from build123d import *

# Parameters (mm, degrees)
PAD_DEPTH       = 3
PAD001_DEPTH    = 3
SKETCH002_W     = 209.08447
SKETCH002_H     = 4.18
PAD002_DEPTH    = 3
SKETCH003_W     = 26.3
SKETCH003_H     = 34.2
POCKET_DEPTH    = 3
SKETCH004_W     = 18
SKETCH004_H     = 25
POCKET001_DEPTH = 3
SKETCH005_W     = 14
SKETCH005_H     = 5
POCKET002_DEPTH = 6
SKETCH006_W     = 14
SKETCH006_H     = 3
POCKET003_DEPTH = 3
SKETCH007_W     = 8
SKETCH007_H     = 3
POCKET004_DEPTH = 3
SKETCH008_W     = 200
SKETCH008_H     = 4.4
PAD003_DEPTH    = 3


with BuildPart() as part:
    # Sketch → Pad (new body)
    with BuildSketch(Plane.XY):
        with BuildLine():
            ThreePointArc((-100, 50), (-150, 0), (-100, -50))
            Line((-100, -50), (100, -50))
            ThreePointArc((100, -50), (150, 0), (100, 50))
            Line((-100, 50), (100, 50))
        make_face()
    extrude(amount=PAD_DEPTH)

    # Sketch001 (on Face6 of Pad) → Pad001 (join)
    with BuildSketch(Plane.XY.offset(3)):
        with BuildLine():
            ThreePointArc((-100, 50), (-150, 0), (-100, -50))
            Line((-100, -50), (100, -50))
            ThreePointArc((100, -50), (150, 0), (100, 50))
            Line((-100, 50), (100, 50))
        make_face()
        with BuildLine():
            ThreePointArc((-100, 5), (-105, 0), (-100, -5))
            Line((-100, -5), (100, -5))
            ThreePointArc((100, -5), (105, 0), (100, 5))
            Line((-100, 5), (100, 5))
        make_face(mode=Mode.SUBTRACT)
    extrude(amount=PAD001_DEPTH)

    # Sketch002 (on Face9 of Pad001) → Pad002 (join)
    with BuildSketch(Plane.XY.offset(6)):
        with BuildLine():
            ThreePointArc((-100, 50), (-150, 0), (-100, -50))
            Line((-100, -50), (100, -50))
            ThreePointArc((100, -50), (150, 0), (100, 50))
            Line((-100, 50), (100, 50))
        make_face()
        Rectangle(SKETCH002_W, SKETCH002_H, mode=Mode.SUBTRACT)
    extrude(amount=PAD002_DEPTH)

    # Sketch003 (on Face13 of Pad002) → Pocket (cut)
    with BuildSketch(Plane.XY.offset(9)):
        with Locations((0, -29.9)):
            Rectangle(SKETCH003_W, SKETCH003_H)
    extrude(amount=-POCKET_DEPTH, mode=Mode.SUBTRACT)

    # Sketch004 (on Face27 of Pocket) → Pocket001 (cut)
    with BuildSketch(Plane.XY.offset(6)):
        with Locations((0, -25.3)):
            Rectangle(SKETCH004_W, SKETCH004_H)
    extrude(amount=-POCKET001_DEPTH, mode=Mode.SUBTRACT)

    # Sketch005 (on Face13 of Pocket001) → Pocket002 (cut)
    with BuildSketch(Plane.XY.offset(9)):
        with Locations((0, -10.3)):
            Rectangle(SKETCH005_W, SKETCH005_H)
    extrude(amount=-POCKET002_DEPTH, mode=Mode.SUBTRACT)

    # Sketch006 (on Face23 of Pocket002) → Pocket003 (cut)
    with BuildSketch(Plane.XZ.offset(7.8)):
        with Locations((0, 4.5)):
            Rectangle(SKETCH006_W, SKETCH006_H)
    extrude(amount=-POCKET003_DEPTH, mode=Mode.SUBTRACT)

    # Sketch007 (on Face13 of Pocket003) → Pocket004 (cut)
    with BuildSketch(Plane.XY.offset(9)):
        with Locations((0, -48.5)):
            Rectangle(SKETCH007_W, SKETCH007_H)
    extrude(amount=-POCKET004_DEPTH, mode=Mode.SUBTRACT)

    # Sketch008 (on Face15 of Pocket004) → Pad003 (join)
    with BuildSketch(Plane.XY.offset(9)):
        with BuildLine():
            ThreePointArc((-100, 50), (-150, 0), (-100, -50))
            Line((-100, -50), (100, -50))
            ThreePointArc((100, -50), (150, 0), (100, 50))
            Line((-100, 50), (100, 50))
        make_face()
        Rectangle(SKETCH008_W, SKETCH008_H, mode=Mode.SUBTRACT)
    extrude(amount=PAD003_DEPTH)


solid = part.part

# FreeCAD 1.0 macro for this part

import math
import FreeCAD as App
import Part
import Sketcher


def add_polygon(sketch, points):
    """Adds a closed chain of lines whose ends are joined by coincident constraints."""
    first, n = sketch.GeometryCount, len(points)
    for a, b in zip(points, points[1:] + points[:1]):
        sketch.addGeometry(Part.LineSegment(App.Vector(*a, 0), App.Vector(*b, 0)), False)
    for i in range(n):
        sketch.addConstraint(Sketcher.Constraint("Coincident", first + i, 2, first + (i + 1) % n, 1))

doc = App.newDocument("Part")
body = doc.addObject("PartDesign::Body", "Body")

# Sketch on XY plane
sketch1 = doc.addObject("Sketcher::SketchObject", "Sketch")
body.addObject(sketch1)
sketch1.AttachmentSupport = (doc.XY_Plane, [""])
sketch1.MapMode = "FlatFace"
sketch1.addGeometry([
    Part.ArcOfCircle(Part.Circle(App.Vector(-100, 0, 0), App.Vector(0, 0, 1), 50), math.radians(90), math.radians(270)),
    Part.LineSegment(App.Vector(-100, -50, 0), App.Vector(100, -50, 0)),
    Part.ArcOfCircle(Part.Circle(App.Vector(100, 0, 0), App.Vector(0, 0, 1), 50), math.radians(-90), math.radians(90)),
    Part.LineSegment(App.Vector(100, 50, 0), App.Vector(-100, 50, 0)),
], False)
sketch1.addConstraint([
    Sketcher.Constraint("Tangent", 0, 2, 1, 1),
    Sketcher.Constraint("Tangent", 1, 2, 2, 1),
    Sketcher.Constraint("Tangent", 2, 2, 3, 1),
    Sketcher.Constraint("Tangent", 3, 2, 0, 1),
    Sketcher.Constraint("Horizontal", 1),
    Sketcher.Constraint("Horizontal", 3),
    Sketcher.Constraint("Symmetric", 0, 3, 2, 3, -1, 1),
    Sketcher.Constraint("Radius", 0, 50.0),
    Sketcher.Constraint("DistanceX", 1, 1, 1, 2, 200.0),
])
pad1 = doc.addObject("PartDesign::Pad", "Pad")
body.addObject(pad1)
pad1.Profile = sketch1
pad1.Length = 3

# Sketch on XY plane
sketch2 = doc.addObject("Sketcher::SketchObject", "Sketch001")
body.addObject(sketch2)
sketch2.AttachmentSupport = (doc.XY_Plane, [""])
sketch2.MapMode = "FlatFace"
sketch2.AttachmentOffset = App.Placement(App.Vector(0, 0, 3), App.Rotation())
sketch2.addGeometry([
    Part.ArcOfCircle(Part.Circle(App.Vector(-100, 0, 0), App.Vector(0, 0, 1), 50), math.radians(90), math.radians(270)),  # 0
    Part.LineSegment(App.Vector(-100, -50, 0), App.Vector(100, -50, 0)),  # 1
    Part.ArcOfCircle(Part.Circle(App.Vector(100, 0, 0), App.Vector(0, 0, 1), 50), math.radians(-90), math.radians(90)),  # 2
    Part.LineSegment(App.Vector(100, 50, 0), App.Vector(-100, 50, 0)),  # 3
    Part.ArcOfCircle(Part.Circle(App.Vector(-100, 0, 0), App.Vector(0, 0, 1), 5), math.radians(90), math.radians(270)),  # 4
    Part.LineSegment(App.Vector(-100, 5, 0), App.Vector(100, 5, 0)),  # 5
    Part.ArcOfCircle(Part.Circle(App.Vector(100, 0, 0), App.Vector(0, 0, 1), 5), math.radians(-90), math.radians(90)),  # 6
    Part.LineSegment(App.Vector(100, -5, 0), App.Vector(-100, -5, 0)),  # 7
], False)
sketch2.addConstraint([
    Sketcher.Constraint("Tangent", 0, 2, 1, 1),
    Sketcher.Constraint("Tangent", 1, 2, 2, 1),
    Sketcher.Constraint("Tangent", 2, 2, 3, 1),
    Sketcher.Constraint("Tangent", 3, 2, 0, 1),
    Sketcher.Constraint("Tangent", 4, 1, 5, 1),
    Sketcher.Constraint("Tangent", 5, 2, 6, 2),
    Sketcher.Constraint("Tangent", 6, 1, 7, 1),
    Sketcher.Constraint("Tangent", 7, 2, 4, 2),
    Sketcher.Constraint("Horizontal", 1),
    Sketcher.Constraint("Horizontal", 3),
    Sketcher.Constraint("Horizontal", 5),
    Sketcher.Constraint("Horizontal", 7),
    Sketcher.Constraint("Coincident", 4, 3, 0, 3),
    Sketcher.Constraint("Symmetric", 0, 3, 2, 3, -1, 1),
    Sketcher.Constraint("Vertical", 6, 3, 1, 2),
    Sketcher.Constraint("Radius", 0, 50.0),
    Sketcher.Constraint("Radius", 4, 5.0),
    Sketcher.Constraint("DistanceX", 1, 1, 1, 2, 200.0),
])
pad2 = doc.addObject("PartDesign::Pad", "Pad001")
body.addObject(pad2)
pad2.Profile = sketch2
pad2.Length = 3

# Sketch on XY plane
sketch3 = doc.addObject("Sketcher::SketchObject", "Sketch002")
body.addObject(sketch3)
sketch3.AttachmentSupport = (doc.XY_Plane, [""])
sketch3.MapMode = "FlatFace"
sketch3.AttachmentOffset = App.Placement(App.Vector(0, 0, 6), App.Rotation())
sketch3.addGeometry(Part.ArcOfCircle(Part.Circle(App.Vector(-100, 0, 0), App.Vector(0, 0, 1), 50), math.radians(90), math.radians(270)), False)  # 0
sketch3.addGeometry(Part.LineSegment(App.Vector(-100, -50, 0), App.Vector(100, -50, 0)), False)  # 1
sketch3.addGeometry(Part.ArcOfCircle(Part.Circle(App.Vector(100, 0, 0), App.Vector(0, 0, 1), 50), math.radians(-90), math.radians(90)), False)  # 2
sketch3.addGeometry(Part.LineSegment(App.Vector(100, 50, 0), App.Vector(-100, 50, 0)), False)  # 3
add_polygon(sketch3, [(104.5, -2.1), (-104.5, -2.1), (-104.5, 2.1), (104.5, 2.1)])  # lines 4-7
sketch3.addConstraint([
    Sketcher.Constraint("Tangent", 0, 2, 1, 1),
    Sketcher.Constraint("Tangent", 1, 2, 2, 1),
    Sketcher.Constraint("Tangent", 2, 2, 3, 1),
    Sketcher.Constraint("Tangent", 3, 2, 0, 1),
    Sketcher.Constraint("Horizontal", 1),
    Sketcher.Constraint("Horizontal", 3),
    Sketcher.Constraint("Horizontal", 4),
    Sketcher.Constraint("Vertical", 5),
    Sketcher.Constraint("Horizontal", 6),
    Sketcher.Constraint("Vertical", 7),
    Sketcher.Constraint("Symmetric", 0, 3, 2, 3, -1, 1),
    Sketcher.Constraint("Symmetric", 4, 2, 6, 2, -1, 1),
    Sketcher.Constraint("Radius", 0, 50.0),
    Sketcher.Constraint("DistanceX", 1, 1, 1, 2, 200.0),
    Sketcher.Constraint("DistanceY", 5, 1, 5, 2, 4.18),
    Sketcher.Constraint("DistanceX", 4, 2, 4, 1, 209.08447),
])
pad3 = doc.addObject("PartDesign::Pad", "Pad002")
body.addObject(pad3)
pad3.Profile = sketch3
pad3.Length = 3

# Sketch on XY plane
sketch4 = doc.addObject("Sketcher::SketchObject", "Sketch003")
body.addObject(sketch4)
sketch4.AttachmentSupport = (doc.XY_Plane, [""])
sketch4.MapMode = "FlatFace"
sketch4.AttachmentOffset = App.Placement(App.Vector(0, 0, 9), App.Rotation())
add_polygon(sketch4, [(-13, -13), (-13, -47), (13, -47), (13, -13)])  # lines 0-3
sketch4.addConstraint([
    Sketcher.Constraint("Vertical", 0),
    Sketcher.Constraint("Horizontal", 1),
    Sketcher.Constraint("Vertical", 2),
    Sketcher.Constraint("Horizontal", 3),
    Sketcher.Constraint("DistanceX", 1, 1, 1, 2, 26.3),
    Sketcher.Constraint("DistanceY", 0, 2, 0, 1, 34.2),
    Sketcher.Constraint("DistanceY", 0, 2, -1, 1, 47.0),
    Sketcher.Constraint("DistanceX", 0, 2, -1, 1, 13.15),
])
pocket1 = doc.addObject("PartDesign::Pocket", "Pocket")
body.addObject(pocket1)
pocket1.Profile = sketch4
pocket1.Length = 3

# Sketch on XY plane
sketch5 = doc.addObject("Sketcher::SketchObject", "Sketch004")
body.addObject(sketch5)
sketch5.AttachmentSupport = (doc.XY_Plane, [""])
sketch5.MapMode = "FlatFace"
sketch5.AttachmentOffset = App.Placement(App.Vector(0, 0, 6), App.Rotation())
add_polygon(sketch5, [(-9, -13), (-9, -38), (9, -38), (9, -13)])  # lines 0-3
sketch5.addConstraint([
    Sketcher.Constraint("Vertical", 0),
    Sketcher.Constraint("Horizontal", 1),
    Sketcher.Constraint("Vertical", 2),
    Sketcher.Constraint("Horizontal", 3),
    Sketcher.Constraint("DistanceX", 1, 1, 1, 2, 18.0),
    Sketcher.Constraint("DistanceY", 0, 2, 0, 1, 25.0),
    Sketcher.Constraint("DistanceX", 0, 2, -1, 1, 9.0),
    Sketcher.Constraint("DistanceY", 0, 2, -1, 1, 37.8),
])
pocket2 = doc.addObject("PartDesign::Pocket", "Pocket001")
body.addObject(pocket2)
pocket2.Profile = sketch5
pocket2.Length = 3

# Sketch on XY plane
sketch6 = doc.addObject("Sketcher::SketchObject", "Sketch005")
body.addObject(sketch6)
sketch6.AttachmentSupport = (doc.XY_Plane, [""])
sketch6.MapMode = "FlatFace"
sketch6.AttachmentOffset = App.Placement(App.Vector(0, 0, 9), App.Rotation())
add_polygon(sketch6, [(-7, -8), (-7, -13), (7, -13), (7, -8)])  # lines 0-3
sketch6.addConstraint([
    Sketcher.Constraint("Vertical", 0),
    Sketcher.Constraint("Horizontal", 1),
    Sketcher.Constraint("Vertical", 2),
    Sketcher.Constraint("Horizontal", 3),
    Sketcher.Constraint("DistanceX", 1, 1, 1, 2, 14.0),
    Sketcher.Constraint("DistanceY", 0, 2, 0, 1, 5.0),
    Sketcher.Constraint("DistanceX", 0, 2, -1, 1, 7.0),
    Sketcher.Constraint("DistanceY", 0, 2, -1, 1, 12.8),
])
pocket3 = doc.addObject("PartDesign::Pocket", "Pocket002")
body.addObject(pocket3)
pocket3.Profile = sketch6
pocket3.Length = 6

# Sketch on XZ plane
sketch7 = doc.addObject("Sketcher::SketchObject", "Sketch006")
body.addObject(sketch7)
sketch7.AttachmentSupport = (doc.XZ_Plane, [""])
sketch7.MapMode = "FlatFace"
sketch7.AttachmentOffset = App.Placement(App.Vector(0, 0, 7.8), App.Rotation())
add_polygon(sketch7, [(-7, 6), (-7, 3), (7, 3), (7, 6)])  # lines 0-3
sketch7.addConstraint([
    Sketcher.Constraint("Vertical", 0),
    Sketcher.Constraint("Horizontal", 1),
    Sketcher.Constraint("Vertical", 2),
    Sketcher.Constraint("Horizontal", 3),
    Sketcher.Constraint("DistanceX", 1, 1, 1, 2, 14.0),
    Sketcher.Constraint("DistanceY", 0, 2, 0, 1, 3.0),
    Sketcher.Constraint("DistanceX", 0, 2, -1, 1, 7.0),
    Sketcher.Constraint("DistanceY", -1, 1, 0, 2, 3.0),
])
pocket4 = doc.addObject("PartDesign::Pocket", "Pocket003")
body.addObject(pocket4)
pocket4.Profile = sketch7
pocket4.Length = 3

# Sketch on XY plane
sketch8 = doc.addObject("Sketcher::SketchObject", "Sketch007")
body.addObject(sketch8)
sketch8.AttachmentSupport = (doc.XY_Plane, [""])
sketch8.MapMode = "FlatFace"
sketch8.AttachmentOffset = App.Placement(App.Vector(0, 0, 9), App.Rotation())
add_polygon(sketch8, [(-4, -47), (-4, -50), (4, -50), (4, -47)])  # lines 0-3
sketch8.addConstraint([
    Sketcher.Constraint("Vertical", 0),
    Sketcher.Constraint("Horizontal", 1),
    Sketcher.Constraint("Vertical", 2),
    Sketcher.Constraint("Horizontal", 3),
    Sketcher.Constraint("DistanceX", 1, 1, 1, 2, 8.0),
    Sketcher.Constraint("DistanceY", 0, 2, 0, 1, 3.0),
    Sketcher.Constraint("DistanceX", 0, 2, -1, 1, 4.0),
    Sketcher.Constraint("DistanceY", 0, 2, -1, 1, 50.0),
])
pocket5 = doc.addObject("PartDesign::Pocket", "Pocket004")
body.addObject(pocket5)
pocket5.Profile = sketch8
pocket5.Length = 3

# Sketch on XY plane
sketch9 = doc.addObject("Sketcher::SketchObject", "Sketch008")
body.addObject(sketch9)
sketch9.AttachmentSupport = (doc.XY_Plane, [""])
sketch9.MapMode = "FlatFace"
sketch9.AttachmentOffset = App.Placement(App.Vector(0, 0, 9), App.Rotation())
sketch9.addGeometry(Part.ArcOfCircle(Part.Circle(App.Vector(-100, 0, 0), App.Vector(0, 0, 1), 50), math.radians(90), math.radians(270)), False)  # 0
sketch9.addGeometry(Part.LineSegment(App.Vector(-100, -50, 0), App.Vector(100, -50, 0)), False)  # 1
sketch9.addGeometry(Part.ArcOfCircle(Part.Circle(App.Vector(100, 0, 0), App.Vector(0, 0, 1), 50), math.radians(-90), math.radians(90)), False)  # 2
sketch9.addGeometry(Part.LineSegment(App.Vector(100, 50, 0), App.Vector(-100, 50, 0)), False)  # 3
add_polygon(sketch9, [(100, -2.2), (-100, -2.2), (-100, 2.2), (100, 2.2)])  # lines 4-7
sketch9.addConstraint([
    Sketcher.Constraint("Tangent", 0, 2, 1, 1),
    Sketcher.Constraint("Tangent", 1, 2, 2, 1),
    Sketcher.Constraint("Tangent", 2, 2, 3, 1),
    Sketcher.Constraint("Tangent", 3, 2, 0, 1),
    Sketcher.Constraint("Horizontal", 1),
    Sketcher.Constraint("Horizontal", 3),
    Sketcher.Constraint("Horizontal", 4),
    Sketcher.Constraint("Vertical", 5),
    Sketcher.Constraint("Horizontal", 6),
    Sketcher.Constraint("Vertical", 7),
    Sketcher.Constraint("Symmetric", 0, 3, 2, 3, -1, 1),
    Sketcher.Constraint("Symmetric", 4, 2, 6, 2, -1, 1),
    Sketcher.Constraint("Vertical", 3, 2, 4, 2),
    Sketcher.Constraint("Radius", 0, 50.0),
    Sketcher.Constraint("DistanceX", 1, 1, 1, 2, 200.0),
    Sketcher.Constraint("DistanceY", 5, 1, 5, 2, 4.4),
])
pad4 = doc.addObject("PartDesign::Pad", "Pad003")
body.addObject(pad4)
pad4.Profile = sketch9
pad4.Length = 3

doc.recompute()
